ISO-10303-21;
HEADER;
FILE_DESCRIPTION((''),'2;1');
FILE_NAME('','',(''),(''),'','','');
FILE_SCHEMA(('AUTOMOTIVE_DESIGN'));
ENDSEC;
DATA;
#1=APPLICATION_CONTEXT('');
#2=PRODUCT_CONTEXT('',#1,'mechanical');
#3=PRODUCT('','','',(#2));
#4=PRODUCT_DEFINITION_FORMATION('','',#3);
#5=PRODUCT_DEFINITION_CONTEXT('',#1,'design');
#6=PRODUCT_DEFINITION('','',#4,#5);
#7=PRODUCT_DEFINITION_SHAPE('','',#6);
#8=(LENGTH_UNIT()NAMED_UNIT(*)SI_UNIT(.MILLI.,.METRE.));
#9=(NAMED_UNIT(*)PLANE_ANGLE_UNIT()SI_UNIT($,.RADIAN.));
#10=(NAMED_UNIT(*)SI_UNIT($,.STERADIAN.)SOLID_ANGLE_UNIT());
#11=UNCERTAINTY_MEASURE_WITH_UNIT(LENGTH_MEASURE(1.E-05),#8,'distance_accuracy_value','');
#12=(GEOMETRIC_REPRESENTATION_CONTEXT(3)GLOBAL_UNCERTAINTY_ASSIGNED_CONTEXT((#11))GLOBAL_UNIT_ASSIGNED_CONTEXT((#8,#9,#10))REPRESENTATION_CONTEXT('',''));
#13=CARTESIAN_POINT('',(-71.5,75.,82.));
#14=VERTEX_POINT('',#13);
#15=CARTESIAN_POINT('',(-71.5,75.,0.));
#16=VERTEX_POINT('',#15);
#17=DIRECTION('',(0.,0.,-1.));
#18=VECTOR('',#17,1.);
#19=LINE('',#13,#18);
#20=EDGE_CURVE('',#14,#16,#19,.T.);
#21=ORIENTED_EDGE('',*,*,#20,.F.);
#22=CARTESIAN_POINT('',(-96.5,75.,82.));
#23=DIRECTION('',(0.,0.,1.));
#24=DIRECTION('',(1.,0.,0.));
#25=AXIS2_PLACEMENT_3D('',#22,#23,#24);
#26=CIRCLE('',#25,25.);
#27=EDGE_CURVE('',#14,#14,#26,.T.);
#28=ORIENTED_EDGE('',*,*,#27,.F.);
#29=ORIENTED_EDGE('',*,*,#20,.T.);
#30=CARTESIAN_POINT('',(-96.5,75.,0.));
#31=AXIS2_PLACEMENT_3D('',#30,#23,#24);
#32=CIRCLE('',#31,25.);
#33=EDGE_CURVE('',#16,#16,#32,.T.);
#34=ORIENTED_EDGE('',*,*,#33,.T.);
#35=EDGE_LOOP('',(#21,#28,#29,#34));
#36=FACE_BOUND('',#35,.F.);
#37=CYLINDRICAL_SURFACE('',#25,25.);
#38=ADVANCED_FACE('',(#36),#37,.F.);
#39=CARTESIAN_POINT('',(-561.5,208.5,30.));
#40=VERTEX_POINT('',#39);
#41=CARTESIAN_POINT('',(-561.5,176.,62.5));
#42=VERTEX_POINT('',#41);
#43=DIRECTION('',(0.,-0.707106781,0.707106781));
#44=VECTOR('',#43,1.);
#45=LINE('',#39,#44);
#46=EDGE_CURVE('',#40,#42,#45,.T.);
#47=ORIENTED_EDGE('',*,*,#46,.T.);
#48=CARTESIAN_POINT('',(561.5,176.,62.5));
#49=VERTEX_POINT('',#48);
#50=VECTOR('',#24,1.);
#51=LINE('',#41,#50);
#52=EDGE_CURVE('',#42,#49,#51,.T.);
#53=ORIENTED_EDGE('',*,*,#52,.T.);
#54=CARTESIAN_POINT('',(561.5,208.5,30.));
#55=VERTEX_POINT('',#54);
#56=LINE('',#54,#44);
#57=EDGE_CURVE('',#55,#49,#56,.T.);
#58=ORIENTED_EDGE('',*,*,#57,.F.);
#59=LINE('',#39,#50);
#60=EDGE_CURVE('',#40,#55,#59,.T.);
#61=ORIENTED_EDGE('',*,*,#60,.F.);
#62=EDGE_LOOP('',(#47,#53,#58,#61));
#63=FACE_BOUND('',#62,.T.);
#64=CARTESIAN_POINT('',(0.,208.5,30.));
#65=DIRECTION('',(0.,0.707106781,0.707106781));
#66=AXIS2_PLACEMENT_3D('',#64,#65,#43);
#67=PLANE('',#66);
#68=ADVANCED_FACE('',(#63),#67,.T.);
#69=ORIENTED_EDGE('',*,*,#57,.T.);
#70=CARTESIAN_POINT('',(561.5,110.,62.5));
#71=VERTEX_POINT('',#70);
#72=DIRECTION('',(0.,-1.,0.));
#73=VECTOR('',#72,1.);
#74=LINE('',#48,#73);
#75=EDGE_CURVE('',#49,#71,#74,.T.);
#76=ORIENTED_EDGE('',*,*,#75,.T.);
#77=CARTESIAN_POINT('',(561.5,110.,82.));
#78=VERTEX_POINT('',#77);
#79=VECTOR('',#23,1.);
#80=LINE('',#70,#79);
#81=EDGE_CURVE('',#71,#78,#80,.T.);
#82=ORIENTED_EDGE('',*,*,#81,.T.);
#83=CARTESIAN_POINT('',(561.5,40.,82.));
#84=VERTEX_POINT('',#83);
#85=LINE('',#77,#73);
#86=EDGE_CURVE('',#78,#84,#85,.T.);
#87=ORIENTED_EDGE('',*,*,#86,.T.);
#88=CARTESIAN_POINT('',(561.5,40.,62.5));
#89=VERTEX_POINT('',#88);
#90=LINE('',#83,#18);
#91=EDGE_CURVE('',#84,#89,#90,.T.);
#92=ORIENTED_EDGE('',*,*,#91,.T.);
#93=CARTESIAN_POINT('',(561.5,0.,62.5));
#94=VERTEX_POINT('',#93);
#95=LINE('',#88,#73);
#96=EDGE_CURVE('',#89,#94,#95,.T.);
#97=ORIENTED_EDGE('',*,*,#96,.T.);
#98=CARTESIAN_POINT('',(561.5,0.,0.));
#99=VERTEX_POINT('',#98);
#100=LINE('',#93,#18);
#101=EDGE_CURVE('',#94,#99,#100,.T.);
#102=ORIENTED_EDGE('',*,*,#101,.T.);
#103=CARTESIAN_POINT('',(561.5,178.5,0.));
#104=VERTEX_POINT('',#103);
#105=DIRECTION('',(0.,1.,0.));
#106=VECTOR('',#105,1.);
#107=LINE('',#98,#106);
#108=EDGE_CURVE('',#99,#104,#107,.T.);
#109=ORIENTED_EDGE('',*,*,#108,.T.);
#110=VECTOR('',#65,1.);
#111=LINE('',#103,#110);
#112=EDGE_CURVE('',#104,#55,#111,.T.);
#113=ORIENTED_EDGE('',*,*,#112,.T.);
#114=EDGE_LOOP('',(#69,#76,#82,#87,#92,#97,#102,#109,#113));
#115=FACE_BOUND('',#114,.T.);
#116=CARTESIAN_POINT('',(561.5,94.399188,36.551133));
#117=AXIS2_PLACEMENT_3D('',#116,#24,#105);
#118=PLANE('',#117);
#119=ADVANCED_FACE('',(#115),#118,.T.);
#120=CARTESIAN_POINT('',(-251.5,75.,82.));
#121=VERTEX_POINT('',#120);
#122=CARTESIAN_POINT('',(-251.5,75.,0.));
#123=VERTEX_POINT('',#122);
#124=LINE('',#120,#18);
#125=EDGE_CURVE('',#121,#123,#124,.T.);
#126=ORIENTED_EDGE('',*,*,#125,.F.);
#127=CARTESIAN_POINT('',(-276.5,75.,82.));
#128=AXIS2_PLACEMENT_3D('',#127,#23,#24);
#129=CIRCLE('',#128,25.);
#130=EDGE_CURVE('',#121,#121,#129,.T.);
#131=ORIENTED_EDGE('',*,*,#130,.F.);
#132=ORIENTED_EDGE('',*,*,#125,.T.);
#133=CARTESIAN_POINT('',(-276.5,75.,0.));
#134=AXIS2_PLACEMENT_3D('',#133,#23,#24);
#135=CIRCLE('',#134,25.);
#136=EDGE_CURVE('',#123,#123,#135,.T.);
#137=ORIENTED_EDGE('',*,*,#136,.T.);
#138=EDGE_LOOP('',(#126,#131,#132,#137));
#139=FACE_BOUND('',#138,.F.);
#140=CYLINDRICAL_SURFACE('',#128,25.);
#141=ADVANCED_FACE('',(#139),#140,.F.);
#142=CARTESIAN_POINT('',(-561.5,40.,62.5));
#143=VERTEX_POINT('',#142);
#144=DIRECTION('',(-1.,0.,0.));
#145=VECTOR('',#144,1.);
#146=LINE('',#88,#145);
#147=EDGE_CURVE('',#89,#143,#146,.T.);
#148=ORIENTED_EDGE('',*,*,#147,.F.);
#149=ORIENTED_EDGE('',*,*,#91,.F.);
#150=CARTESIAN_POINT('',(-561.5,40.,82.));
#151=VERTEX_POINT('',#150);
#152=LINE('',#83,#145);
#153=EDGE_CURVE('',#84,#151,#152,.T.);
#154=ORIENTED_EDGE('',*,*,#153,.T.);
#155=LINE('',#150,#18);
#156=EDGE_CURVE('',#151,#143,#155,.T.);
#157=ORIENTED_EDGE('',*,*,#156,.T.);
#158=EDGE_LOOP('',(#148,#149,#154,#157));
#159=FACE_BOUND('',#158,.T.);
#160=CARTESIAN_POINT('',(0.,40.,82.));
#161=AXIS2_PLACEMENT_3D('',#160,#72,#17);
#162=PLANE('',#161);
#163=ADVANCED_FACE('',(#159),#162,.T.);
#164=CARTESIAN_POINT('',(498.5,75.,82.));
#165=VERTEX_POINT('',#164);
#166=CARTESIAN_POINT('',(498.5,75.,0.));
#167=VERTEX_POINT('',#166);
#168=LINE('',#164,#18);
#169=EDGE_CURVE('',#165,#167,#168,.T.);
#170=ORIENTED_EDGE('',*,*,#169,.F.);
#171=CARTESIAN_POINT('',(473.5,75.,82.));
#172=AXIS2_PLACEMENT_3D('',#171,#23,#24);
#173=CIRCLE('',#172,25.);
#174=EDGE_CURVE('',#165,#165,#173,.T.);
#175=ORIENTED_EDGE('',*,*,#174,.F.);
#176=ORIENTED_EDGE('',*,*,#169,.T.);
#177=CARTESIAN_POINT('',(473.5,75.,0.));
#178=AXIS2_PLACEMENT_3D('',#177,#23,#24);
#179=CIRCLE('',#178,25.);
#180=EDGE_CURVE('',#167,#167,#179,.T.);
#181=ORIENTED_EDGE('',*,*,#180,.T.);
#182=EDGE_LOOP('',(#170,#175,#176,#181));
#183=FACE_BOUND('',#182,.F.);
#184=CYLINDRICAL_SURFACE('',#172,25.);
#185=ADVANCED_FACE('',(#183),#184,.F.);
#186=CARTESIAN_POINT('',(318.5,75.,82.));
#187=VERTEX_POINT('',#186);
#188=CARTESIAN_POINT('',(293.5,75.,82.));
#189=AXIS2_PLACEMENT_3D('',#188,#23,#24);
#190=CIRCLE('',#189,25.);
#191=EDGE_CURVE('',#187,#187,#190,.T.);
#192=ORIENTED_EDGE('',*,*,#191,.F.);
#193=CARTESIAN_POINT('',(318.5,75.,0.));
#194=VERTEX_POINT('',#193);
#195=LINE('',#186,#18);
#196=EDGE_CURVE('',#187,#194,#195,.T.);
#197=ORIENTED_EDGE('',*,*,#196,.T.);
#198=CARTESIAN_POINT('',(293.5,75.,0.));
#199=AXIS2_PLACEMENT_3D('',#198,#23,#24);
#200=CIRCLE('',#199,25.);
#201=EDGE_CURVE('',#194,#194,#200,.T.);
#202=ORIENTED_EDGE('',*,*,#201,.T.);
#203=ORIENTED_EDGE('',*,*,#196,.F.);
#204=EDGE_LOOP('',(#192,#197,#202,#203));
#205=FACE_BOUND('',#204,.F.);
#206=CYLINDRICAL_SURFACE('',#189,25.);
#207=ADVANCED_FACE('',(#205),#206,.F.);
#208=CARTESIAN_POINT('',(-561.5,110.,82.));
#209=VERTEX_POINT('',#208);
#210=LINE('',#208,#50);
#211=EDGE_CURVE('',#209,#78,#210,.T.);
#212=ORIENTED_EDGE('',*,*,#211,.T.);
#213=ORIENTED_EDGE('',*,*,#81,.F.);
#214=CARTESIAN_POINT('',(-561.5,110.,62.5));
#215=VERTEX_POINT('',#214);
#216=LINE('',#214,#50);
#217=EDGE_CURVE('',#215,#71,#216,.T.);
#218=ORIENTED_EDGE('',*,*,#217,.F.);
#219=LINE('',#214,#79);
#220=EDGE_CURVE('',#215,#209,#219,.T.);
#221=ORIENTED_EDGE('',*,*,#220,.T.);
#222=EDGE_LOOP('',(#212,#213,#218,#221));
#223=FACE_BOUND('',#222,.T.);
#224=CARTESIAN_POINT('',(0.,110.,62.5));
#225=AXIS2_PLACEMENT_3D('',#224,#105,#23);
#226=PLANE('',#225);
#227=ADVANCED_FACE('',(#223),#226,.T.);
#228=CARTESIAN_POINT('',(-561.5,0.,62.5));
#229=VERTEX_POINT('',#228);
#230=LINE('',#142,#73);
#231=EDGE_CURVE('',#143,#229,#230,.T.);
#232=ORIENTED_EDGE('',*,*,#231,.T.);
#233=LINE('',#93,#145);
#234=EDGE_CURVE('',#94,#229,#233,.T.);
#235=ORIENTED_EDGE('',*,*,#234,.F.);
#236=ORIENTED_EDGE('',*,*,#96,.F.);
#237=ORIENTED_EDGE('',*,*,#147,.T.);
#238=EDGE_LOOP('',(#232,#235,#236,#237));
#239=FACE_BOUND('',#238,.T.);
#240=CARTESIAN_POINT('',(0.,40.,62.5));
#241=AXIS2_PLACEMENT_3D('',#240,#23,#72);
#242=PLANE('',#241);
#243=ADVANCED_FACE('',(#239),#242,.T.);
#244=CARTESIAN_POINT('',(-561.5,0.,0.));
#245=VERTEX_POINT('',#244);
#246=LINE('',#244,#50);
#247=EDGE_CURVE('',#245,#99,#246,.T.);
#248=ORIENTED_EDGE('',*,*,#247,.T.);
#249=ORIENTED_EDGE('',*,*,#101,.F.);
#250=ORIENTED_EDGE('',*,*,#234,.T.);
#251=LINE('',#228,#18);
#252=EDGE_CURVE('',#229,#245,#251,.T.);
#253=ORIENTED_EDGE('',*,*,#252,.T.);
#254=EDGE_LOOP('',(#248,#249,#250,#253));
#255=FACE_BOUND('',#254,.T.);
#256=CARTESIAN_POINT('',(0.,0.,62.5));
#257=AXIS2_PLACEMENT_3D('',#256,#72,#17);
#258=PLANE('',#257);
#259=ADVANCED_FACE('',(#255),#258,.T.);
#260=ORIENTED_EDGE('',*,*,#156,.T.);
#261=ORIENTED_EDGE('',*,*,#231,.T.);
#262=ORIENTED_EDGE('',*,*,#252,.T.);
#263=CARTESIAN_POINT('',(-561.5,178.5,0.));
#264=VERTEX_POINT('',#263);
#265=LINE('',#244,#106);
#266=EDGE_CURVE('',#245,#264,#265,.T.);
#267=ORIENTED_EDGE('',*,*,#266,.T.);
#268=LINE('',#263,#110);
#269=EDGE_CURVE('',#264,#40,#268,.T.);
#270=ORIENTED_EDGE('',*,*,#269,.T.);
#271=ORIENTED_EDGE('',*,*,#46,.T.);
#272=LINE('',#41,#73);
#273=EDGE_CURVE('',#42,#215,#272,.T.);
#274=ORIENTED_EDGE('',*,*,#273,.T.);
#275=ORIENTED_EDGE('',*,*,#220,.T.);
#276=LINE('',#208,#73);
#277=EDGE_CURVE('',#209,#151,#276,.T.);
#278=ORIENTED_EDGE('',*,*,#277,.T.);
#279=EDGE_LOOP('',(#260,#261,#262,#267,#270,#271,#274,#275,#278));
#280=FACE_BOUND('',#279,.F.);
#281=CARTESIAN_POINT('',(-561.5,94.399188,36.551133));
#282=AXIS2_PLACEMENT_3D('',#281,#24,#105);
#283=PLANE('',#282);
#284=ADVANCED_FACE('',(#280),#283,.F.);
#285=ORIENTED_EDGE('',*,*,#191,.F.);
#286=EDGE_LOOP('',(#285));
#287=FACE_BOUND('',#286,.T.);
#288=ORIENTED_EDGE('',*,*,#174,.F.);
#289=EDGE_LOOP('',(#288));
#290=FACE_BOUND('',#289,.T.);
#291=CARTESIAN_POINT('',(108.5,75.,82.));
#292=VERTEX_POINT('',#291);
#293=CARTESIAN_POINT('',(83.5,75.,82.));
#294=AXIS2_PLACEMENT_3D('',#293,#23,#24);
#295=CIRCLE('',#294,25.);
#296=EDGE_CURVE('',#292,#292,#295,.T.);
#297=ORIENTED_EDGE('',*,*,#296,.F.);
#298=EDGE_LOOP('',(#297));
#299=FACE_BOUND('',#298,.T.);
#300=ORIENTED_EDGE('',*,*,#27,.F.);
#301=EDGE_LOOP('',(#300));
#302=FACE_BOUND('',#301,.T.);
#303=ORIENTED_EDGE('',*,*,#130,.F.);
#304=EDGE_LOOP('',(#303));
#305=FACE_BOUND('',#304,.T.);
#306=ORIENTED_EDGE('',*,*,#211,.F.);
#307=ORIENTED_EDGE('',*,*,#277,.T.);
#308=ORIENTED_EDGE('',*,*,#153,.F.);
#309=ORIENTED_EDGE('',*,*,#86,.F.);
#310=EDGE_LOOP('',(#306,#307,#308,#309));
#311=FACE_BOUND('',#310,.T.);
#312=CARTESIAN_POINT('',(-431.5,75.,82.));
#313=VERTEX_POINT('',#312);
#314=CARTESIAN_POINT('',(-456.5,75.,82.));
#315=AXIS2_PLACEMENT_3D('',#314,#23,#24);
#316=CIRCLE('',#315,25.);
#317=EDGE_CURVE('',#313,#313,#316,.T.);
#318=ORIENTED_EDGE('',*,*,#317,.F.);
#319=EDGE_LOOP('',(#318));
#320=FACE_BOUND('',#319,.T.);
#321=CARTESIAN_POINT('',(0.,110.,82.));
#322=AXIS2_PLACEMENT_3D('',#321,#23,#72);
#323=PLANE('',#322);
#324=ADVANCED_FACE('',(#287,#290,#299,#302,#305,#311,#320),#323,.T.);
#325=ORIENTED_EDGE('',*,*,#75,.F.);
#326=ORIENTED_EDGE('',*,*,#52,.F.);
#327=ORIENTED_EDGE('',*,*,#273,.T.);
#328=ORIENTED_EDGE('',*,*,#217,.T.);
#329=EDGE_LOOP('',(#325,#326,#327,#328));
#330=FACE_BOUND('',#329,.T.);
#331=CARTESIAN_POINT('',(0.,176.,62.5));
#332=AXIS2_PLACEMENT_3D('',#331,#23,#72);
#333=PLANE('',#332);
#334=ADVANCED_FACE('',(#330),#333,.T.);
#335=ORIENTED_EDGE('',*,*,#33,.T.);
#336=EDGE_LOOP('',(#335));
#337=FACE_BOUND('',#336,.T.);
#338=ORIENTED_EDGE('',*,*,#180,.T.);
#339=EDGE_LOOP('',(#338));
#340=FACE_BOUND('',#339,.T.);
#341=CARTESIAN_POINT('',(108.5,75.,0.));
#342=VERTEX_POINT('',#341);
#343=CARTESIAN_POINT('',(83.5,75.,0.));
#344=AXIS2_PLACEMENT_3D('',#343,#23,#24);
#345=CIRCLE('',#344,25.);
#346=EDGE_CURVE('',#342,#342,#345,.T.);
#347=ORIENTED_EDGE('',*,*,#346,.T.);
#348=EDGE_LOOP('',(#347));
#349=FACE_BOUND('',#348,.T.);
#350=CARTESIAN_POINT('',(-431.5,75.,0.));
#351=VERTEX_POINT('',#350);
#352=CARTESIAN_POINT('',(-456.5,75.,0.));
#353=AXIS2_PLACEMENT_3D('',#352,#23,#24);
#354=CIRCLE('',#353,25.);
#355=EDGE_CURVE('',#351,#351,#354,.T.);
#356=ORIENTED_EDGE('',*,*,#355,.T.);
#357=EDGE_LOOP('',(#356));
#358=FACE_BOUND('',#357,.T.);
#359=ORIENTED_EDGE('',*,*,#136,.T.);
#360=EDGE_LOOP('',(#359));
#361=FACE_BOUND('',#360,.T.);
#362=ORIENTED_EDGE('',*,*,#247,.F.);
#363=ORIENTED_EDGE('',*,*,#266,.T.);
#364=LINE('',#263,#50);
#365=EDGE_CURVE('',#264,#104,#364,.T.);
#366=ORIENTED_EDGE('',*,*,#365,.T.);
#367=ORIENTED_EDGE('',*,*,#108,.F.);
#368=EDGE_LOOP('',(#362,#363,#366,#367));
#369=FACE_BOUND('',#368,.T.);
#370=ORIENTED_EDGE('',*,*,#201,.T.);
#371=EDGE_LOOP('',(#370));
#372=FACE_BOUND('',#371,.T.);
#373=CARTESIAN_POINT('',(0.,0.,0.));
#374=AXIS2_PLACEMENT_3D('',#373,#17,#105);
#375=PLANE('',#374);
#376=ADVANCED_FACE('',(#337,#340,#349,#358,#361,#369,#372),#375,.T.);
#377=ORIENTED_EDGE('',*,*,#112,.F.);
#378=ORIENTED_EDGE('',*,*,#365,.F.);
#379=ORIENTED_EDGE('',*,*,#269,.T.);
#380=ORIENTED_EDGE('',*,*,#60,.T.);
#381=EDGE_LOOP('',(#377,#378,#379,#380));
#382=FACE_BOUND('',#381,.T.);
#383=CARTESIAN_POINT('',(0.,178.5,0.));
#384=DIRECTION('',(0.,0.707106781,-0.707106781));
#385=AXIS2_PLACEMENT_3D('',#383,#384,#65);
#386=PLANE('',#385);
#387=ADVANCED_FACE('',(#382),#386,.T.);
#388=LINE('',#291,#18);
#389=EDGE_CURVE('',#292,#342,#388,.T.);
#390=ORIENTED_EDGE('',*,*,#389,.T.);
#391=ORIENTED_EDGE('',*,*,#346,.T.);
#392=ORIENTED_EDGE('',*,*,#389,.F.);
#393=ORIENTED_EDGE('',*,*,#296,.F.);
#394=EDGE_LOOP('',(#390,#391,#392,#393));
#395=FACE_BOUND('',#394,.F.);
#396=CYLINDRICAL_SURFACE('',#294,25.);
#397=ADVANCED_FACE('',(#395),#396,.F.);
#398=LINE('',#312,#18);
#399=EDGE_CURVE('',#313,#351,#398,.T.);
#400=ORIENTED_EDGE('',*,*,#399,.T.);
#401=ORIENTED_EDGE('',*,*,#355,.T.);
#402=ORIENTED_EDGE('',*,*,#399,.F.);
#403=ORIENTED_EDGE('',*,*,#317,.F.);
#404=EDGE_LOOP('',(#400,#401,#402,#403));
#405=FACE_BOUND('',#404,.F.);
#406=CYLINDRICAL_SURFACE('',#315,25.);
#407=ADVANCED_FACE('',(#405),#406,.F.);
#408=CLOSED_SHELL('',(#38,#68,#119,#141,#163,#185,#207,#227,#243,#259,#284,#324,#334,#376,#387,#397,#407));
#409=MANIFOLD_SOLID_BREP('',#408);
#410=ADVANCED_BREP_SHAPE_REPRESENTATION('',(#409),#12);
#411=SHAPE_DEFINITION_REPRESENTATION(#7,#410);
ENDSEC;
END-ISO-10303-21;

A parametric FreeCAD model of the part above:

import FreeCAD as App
import Part
import Sketcher
from FreeCAD import Vector
Q = App.Units.Quantity

doc = App.newDocument("Part")
params = doc.addObject("Spreadsheet::Sheet", "Params")
for row, (alias, value) in enumerate([
    ("sketch1_width", "66 mm"),
    ("sketch1_width2", "70 mm"),
    ("sketch1_width3", "40 mm"),
    ("sketch1_width4", "178.5 mm"),
    ("sketch1_height", "62.5 mm"),
    ("pad1_length", "1123 mm"),
    ("sketch2_diameter", "50 mm"),
], start=1):
    params.set(f"A{row}", alias)
    params.set(f"B{row}", "=" + value)
    params.setAlias(f"B{row}", alias)

body = doc.addObject("PartDesign::Body", "Body")

# Sketch on YZ plane
sketch1 = doc.addObject("Sketcher::SketchObject", "Sketch")
body.addObject(sketch1)
sketch1.AttachmentSupport = (doc.YZ_Plane, [""])
sketch1.MapMode = "FlatFace"
sketch1.addGeometry([
    Part.LineSegment(Vector(0, 62, 0), Vector(0, 0, 0)),  # 0
    Part.LineSegment(Vector(0, 0, 0), Vector(178, 0, 0)),  # 1
    Part.LineSegment(Vector(178, 0, 0), Vector(208, 30, 0)),  # 2
    Part.LineSegment(Vector(208, 30, 0), Vector(176, 62, 0)),  # 3
    Part.LineSegment(Vector(176, 62, 0), Vector(110, 62, 0)),  # 4
    Part.LineSegment(Vector(110, 62, 0), Vector(110, 82, 0)),  # 5
    Part.LineSegment(Vector(110, 82, 0), Vector(40, 82, 0)),  # 6
    Part.LineSegment(Vector(40, 82, 0), Vector(40, 62, 0)),  # 7
    Part.LineSegment(Vector(40, 62, 0), Vector(0, 62, 0)),  # 8
], False)
sketch1.addConstraint([
    Sketcher.Constraint("Coincident", 0, 2, 1, 1),
    Sketcher.Constraint("Coincident", 1, 2, 2, 1),
    Sketcher.Constraint("Coincident", 2, 2, 3, 1),
    Sketcher.Constraint("Coincident", 3, 2, 4, 1),
    Sketcher.Constraint("Coincident", 4, 2, 5, 1),
    Sketcher.Constraint("Coincident", 5, 2, 6, 1),
    Sketcher.Constraint("Coincident", 6, 2, 7, 1),
    Sketcher.Constraint("Coincident", 7, 2, 8, 1),
    Sketcher.Constraint("Coincident", 8, 2, 0, 1),
    Sketcher.Constraint("Vertical", 0),
    Sketcher.Constraint("Horizontal", 1),
    Sketcher.Constraint("Horizontal", 4),
    Sketcher.Constraint("Vertical", 5),
    Sketcher.Constraint("Horizontal", 6),
    Sketcher.Constraint("Vertical", 7),
    Sketcher.Constraint("Horizontal", 8),
    Sketcher.Constraint("Coincident", 0, 2, -1, 1),
    Sketcher.Constraint("Perpendicular", 2, 3),
    Sketcher.Constraint("Horizontal", 4, 2, 7, 2),
    Sketcher.Constraint("DistanceX", 4, 2, 4, 1, 66.0),
    Sketcher.Constraint("DistanceX", 6, 2, 6, 1, 70.0),
    Sketcher.Constraint("DistanceX", 8, 2, 8, 1, 40.0),
    Sketcher.Constraint("Angle", 2, Q("45 deg")),
    Sketcher.Constraint("DistanceX", 1, 1, 1, 2, 178.5),
    Sketcher.Constraint("DistanceY", 0, 2, 0, 1, 62.5),
    Sketcher.Constraint("DistanceY", 5, 1, 5, 2, 19.5),
])
sketch1.setExpression("Constraints[19]", "Params.sketch1_width")
sketch1.setExpression("Constraints[20]", "Params.sketch1_width2")
sketch1.setExpression("Constraints[21]", "Params.sketch1_width3")
sketch1.setExpression("Constraints[23]", "Params.sketch1_width4")
sketch1.setExpression("Constraints[24]", "Params.sketch1_height")
pad1 = doc.addObject("PartDesign::Pad", "Pad")
body.addObject(pad1)
pad1.Profile = sketch1
pad1.setExpression("Length", "Params.pad1_length")
pad1.Midplane = True

# Sketch on XY plane
sketch2 = doc.addObject("Sketcher::SketchObject", "Sketch001")
body.addObject(sketch2)
sketch2.AttachmentSupport = (doc.XY_Plane, [""])
sketch2.MapMode = "FlatFace"
sketch2.AttachmentOffset = App.Placement(Vector(0, 0, 82), App.Rotation())
sketch2.addGeometry([
    Part.Circle(Vector(474, 75, 0), Vector(0, 0, 1), 25),  # 0
    Part.Circle(Vector(294, 75, 0), Vector(0, 0, 1), 25),  # 1
    Part.Circle(Vector(84, 75, 0), Vector(0, 0, 1), 25),  # 2
    Part.Circle(Vector(-96, 75, 0), Vector(0, 0, 1), 25),  # 3
    Part.Circle(Vector(-276, 75, 0), Vector(0, 0, 1), 25),  # 4
    Part.Circle(Vector(-456, 75, 0), Vector(0, 0, 1), 25),  # 5
], False)
sketch2.addConstraint([
    Sketcher.Constraint("Equal", 0, 1),
    Sketcher.Constraint("Equal", 1, 2),
    Sketcher.Constraint("Equal", 2, 3),
    Sketcher.Constraint("Equal", 3, 4),
    Sketcher.Constraint("Equal", 4, 5),
    Sketcher.Constraint("Horizontal", 0, 3, 1, 3),
    Sketcher.Constraint("Horizontal", 1, 3, 2, 3),
    Sketcher.Constraint("Horizontal", 2, 3, 3, 3),
    Sketcher.Constraint("Horizontal", 3, 3, 4, 3),
    Sketcher.Constraint("Horizontal", 4, 3, 5, 3),
    Sketcher.Constraint("Diameter", 0, 50.0),
    Sketcher.Constraint("DistanceY", -1, 1, 0, 3, 75.0),
    Sketcher.Constraint("DistanceX", 1, 3, 0, 3, 180.0),
    Sketcher.Constraint("DistanceX", 2, 3, 1, 3, 210.0),
    Sketcher.Constraint("DistanceX", 3, 3, 2, 3, 180.0),
    Sketcher.Constraint("DistanceX", 4, 3, 3, 3, 180.0),
    Sketcher.Constraint("DistanceX", 5, 3, 4, 3, 180.0),
    Sketcher.Constraint("DistanceX", -1, 1, 0, 3, 473.5),
])
sketch2.setExpression("Constraints[10]", "Params.sketch2_diameter")
pocket1 = doc.addObject("PartDesign::Pocket", "Pocket")
body.addObject(pocket1)
pocket1.Profile = sketch2
pocket1.Type = "ThroughAll"

doc.recompute()
